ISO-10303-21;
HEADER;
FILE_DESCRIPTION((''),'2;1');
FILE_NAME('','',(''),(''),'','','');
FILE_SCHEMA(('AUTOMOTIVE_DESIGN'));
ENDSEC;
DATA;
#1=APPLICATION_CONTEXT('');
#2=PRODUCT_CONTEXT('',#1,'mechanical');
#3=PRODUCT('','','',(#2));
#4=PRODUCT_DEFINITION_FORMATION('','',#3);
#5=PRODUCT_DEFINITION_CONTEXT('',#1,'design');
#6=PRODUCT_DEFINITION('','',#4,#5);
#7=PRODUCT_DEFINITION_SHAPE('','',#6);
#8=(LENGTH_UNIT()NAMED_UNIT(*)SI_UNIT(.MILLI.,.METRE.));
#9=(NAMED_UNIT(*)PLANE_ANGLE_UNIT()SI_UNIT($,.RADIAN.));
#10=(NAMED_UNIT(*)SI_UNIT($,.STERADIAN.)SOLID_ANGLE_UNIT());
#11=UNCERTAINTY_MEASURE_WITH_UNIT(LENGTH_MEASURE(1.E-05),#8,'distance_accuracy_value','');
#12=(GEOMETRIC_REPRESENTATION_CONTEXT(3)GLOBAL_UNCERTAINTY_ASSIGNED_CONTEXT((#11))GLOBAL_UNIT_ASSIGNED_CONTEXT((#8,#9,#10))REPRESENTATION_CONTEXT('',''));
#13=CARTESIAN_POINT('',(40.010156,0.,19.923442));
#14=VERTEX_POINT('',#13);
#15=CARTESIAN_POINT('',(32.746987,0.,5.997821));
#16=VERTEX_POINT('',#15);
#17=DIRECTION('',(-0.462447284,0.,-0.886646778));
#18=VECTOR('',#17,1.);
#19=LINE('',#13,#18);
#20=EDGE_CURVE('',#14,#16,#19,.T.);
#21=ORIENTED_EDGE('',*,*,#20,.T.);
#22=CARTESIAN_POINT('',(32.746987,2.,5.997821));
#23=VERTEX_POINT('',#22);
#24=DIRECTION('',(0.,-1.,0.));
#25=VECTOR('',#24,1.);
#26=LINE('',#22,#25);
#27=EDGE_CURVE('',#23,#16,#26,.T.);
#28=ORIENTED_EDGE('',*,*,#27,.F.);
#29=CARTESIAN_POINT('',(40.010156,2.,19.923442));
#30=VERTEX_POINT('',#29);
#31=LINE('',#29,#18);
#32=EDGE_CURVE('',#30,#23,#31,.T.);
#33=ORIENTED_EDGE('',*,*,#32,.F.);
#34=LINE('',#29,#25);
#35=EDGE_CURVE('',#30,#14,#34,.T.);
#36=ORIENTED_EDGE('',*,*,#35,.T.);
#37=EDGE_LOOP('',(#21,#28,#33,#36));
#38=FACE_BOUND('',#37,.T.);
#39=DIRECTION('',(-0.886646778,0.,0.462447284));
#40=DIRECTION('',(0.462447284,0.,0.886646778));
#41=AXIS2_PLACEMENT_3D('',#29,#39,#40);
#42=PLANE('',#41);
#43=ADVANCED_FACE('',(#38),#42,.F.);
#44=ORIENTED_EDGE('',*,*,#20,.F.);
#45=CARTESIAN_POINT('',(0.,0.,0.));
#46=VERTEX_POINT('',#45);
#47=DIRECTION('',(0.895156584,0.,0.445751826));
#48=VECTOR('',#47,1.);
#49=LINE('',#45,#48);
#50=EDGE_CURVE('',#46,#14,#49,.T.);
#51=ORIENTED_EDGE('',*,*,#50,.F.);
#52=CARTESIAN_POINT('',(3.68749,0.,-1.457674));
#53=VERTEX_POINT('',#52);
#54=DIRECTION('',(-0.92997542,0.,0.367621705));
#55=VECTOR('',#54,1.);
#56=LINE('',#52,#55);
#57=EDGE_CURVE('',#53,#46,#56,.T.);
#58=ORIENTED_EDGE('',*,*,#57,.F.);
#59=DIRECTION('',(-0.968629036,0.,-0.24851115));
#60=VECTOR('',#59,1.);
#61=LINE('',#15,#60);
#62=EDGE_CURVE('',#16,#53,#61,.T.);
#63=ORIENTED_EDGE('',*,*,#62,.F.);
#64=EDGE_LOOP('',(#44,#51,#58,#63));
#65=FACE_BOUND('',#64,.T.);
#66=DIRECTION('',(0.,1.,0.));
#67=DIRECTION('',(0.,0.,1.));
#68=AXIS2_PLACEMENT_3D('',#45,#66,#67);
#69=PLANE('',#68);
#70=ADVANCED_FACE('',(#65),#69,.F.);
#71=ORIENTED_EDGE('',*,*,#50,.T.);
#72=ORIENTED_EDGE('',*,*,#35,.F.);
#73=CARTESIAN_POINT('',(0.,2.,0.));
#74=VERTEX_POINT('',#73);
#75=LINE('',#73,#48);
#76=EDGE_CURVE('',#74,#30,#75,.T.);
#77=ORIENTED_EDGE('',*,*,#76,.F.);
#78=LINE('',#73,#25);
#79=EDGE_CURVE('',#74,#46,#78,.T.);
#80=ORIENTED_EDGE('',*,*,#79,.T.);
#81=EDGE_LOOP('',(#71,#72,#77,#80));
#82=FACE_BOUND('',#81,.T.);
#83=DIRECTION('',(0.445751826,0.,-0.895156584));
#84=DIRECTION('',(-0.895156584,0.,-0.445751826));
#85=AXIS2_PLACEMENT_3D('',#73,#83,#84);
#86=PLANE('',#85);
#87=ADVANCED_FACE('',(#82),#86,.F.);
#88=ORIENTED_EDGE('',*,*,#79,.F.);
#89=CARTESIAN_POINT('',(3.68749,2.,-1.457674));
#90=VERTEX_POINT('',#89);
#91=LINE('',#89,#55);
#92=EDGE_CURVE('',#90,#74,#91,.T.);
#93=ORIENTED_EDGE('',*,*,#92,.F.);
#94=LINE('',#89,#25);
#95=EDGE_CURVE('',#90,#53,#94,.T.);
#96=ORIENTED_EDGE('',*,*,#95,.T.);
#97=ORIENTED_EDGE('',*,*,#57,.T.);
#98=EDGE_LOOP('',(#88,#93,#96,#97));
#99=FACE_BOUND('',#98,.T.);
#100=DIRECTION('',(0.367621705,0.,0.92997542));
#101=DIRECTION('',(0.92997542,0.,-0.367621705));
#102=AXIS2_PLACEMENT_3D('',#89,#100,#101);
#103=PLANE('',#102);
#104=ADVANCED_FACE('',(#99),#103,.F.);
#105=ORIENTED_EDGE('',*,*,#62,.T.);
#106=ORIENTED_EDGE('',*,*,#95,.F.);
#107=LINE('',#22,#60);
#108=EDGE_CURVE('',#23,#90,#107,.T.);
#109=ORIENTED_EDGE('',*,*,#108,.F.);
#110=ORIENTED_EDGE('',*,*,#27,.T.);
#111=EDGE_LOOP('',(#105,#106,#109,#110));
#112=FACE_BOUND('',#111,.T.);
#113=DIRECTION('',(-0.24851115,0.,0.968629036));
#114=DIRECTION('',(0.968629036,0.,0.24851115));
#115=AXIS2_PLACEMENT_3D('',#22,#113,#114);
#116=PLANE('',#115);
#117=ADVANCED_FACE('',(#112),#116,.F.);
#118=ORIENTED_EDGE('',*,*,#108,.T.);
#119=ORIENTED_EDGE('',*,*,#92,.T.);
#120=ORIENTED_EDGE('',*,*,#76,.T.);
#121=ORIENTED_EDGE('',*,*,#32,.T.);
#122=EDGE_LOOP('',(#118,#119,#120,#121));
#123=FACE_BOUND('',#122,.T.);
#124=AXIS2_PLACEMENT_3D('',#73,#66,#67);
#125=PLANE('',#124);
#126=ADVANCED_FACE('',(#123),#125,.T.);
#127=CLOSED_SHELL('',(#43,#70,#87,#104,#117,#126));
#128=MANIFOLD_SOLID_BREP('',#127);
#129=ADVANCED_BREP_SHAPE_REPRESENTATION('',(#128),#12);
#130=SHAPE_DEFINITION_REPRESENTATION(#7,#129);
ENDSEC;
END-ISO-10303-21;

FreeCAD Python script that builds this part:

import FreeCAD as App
import Part
import Sketcher
from FreeCAD import Vector


def add_polygon(sketch, points):
    """Adds a closed chain of lines whose ends are joined by coincident constraints."""
    first, n = sketch.GeometryCount, len(points)
    for a, b in zip(points, points[1:] + points[:1]):
        sketch.addGeometry(Part.LineSegment(App.Vector(*a, 0), App.Vector(*b, 0)), False)
    for i in range(n):
        sketch.addConstraint(Sketcher.Constraint("Coincident", first + i, 2, first + (i + 1) % n, 1))

doc = App.newDocument("Part")
params = doc.addObject("Spreadsheet::Sheet", "Params")
for row, (alias, value) in enumerate([
    ("pad1_length", "2 mm"),
], start=1):
    params.set(f"A{row}", alias)
    params.set(f"B{row}", "=" + value)
    params.setAlias(f"B{row}", alias)

body = doc.addObject("PartDesign::Body", "Body")

sketch1 = body.newObject("Sketcher::SketchObject", "Sketch")
sketch1.AttachmentSupport = (doc.getObject("XZ_Plane"), [""])
sketch1.MapMode = "FlatFace"
add_polygon(sketch1, [(32.746987, 5.997821), (3.68749, -1.457674), (0, 0), (40.010156, 19.923442)])
sketch1.addConstraint(Sketcher.Constraint("Coincident", 1, 2, -1, 1))
sketch1.addConstraint(Sketcher.Constraint("Distance", 3, 15.70594))
sketch1.addConstraint(Sketcher.Constraint("DistanceX", -1, 1, 0, 2, 3.68749))
sketch1.addConstraint(Sketcher.Constraint("DistanceY", -1, 1, 2, 2, 19.923442))
sketch1.addConstraint(Sketcher.Constraint("DistanceY", -1, 1, 3, 2, 5.997821))
sketch1.addConstraint(Sketcher.Constraint("Distance", 0, 30.000646))
sketch1.addConstraint(Sketcher.Constraint("Distance", 1, 3.965147))
pad1 = body.newObject("PartDesign::Pad", "Pad")
pad1.Profile = sketch1
pad1.setExpression("Length", "Params.pad1_length")
pad1.Reversed = True

doc.recompute()
